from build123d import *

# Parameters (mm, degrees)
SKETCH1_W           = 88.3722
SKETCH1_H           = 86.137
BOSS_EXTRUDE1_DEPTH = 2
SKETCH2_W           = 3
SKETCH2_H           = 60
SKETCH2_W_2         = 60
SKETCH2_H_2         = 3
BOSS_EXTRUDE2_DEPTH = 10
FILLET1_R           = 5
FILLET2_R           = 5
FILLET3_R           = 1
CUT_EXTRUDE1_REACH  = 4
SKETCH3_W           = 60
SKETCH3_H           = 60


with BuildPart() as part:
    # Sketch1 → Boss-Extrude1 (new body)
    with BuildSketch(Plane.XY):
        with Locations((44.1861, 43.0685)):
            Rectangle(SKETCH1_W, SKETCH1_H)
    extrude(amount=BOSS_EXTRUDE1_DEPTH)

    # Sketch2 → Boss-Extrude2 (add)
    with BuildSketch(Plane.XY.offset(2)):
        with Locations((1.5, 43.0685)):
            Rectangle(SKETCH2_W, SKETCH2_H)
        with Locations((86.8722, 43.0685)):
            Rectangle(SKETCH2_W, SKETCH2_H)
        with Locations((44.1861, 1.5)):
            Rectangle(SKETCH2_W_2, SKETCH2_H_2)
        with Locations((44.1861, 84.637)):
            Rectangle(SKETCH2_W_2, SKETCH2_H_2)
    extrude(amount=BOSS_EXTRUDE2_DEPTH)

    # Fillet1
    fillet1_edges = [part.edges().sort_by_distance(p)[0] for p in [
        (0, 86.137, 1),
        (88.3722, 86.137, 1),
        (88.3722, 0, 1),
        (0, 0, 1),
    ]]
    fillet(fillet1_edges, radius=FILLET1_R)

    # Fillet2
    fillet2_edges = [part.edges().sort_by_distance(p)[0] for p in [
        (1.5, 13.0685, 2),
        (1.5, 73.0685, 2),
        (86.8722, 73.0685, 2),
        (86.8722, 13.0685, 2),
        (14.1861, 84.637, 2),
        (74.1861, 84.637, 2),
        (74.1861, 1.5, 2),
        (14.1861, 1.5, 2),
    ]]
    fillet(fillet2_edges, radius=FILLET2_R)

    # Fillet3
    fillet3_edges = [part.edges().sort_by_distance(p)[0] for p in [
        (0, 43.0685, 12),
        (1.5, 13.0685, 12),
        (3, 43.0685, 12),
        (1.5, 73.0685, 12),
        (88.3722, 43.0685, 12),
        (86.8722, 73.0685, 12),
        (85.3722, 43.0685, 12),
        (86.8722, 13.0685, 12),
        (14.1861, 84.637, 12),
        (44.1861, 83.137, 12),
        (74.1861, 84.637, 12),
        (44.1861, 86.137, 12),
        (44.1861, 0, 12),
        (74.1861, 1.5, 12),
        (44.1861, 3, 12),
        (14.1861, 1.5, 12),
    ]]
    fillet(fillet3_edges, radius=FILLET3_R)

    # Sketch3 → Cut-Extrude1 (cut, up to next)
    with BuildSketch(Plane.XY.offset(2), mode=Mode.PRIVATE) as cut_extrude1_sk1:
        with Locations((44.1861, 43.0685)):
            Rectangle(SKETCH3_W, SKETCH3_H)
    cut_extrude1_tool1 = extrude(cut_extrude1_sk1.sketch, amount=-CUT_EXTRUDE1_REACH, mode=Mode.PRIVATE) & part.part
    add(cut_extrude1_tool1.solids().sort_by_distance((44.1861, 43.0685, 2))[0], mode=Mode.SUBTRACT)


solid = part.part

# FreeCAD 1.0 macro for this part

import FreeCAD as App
import Part
import Sketcher

V = App.Vector


def edges_at(feature, points):
    """Names of the edges that pass closest to the given points."""
    edges = feature.Shape.Edges
    near = lambda p: min(range(len(edges)), key=lambda i: edges[i].distToShape(Part.Vertex(*p))[0])
    return sorted({f"Edge{near(p) + 1}" for p in points})

doc = App.newDocument("Part")
params = doc.addObject("Spreadsheet::Sheet", "Params")
for row, (alias, value) in enumerate([
    ("pad1_length", "2 mm"),
    ("sketch2_width", "3 mm"),
    ("sketch2_width2", "60 mm"),
    ("pad2_length", "10 mm"),
    ("fillet_radius", "5 mm"),
    ("fillet2_radius", "5 mm"),
    ("fillet3_radius", "1 mm"),
    ("sketch3_width", "60 mm"),
], start=1):
    params.set(f"A{row}", alias)
    params.set(f"B{row}", "=" + value)
    params.setAlias(f"B{row}", alias)

body = doc.addObject("PartDesign::Body", "Body")

sketch1 = body.newObject("Sketcher::SketchObject", "Sketch")
sketch1.AttachmentSupport = (doc.getObject("XY_Plane"), [""])
sketch1.MapMode = "FlatFace"
sketch1.addGeometry(Part.LineSegment(V(0, 86, 0), V(0, 0, 0)), False)
sketch1.addGeometry(Part.LineSegment(V(0, 0, 0), V(88, 0, 0)), False)
sketch1.addGeometry(Part.LineSegment(V(88, 0, 0), V(88, 86, 0)), False)
sketch1.addGeometry(Part.LineSegment(V(88, 86, 0), V(0, 86, 0)), False)
sketch1.addConstraint(Sketcher.Constraint("Coincident", 0, 2, 1, 1))
sketch1.addConstraint(Sketcher.Constraint("Coincident", 1, 2, 2, 1))
sketch1.addConstraint(Sketcher.Constraint("Coincident", 2, 2, 3, 1))
sketch1.addConstraint(Sketcher.Constraint("Coincident", 3, 2, 0, 1))
sketch1.addConstraint(Sketcher.Constraint("Vertical", 0))
sketch1.addConstraint(Sketcher.Constraint("Horizontal", 1))
sketch1.addConstraint(Sketcher.Constraint("Vertical", 2))
sketch1.addConstraint(Sketcher.Constraint("Horizontal", 3))
sketch1.addConstraint(Sketcher.Constraint("Coincident", 0, 2, -1, 1))
sketch1.addConstraint(Sketcher.Constraint("DistanceY", 0, 2, 0, 1, 86.137))
sketch1.addConstraint(Sketcher.Constraint("DistanceX", 1, 1, 1, 2, 88.3722))
pad1 = body.newObject("PartDesign::Pad", "Pad")
pad1.Profile = sketch1
pad1.setExpression("Length", "Params.pad1_length")

sketch2 = body.newObject("Sketcher::SketchObject", "Sketch001")
sketch2.AttachmentSupport = (doc.getObject("XY_Plane"), [""])
sketch2.MapMode = "FlatFace"
sketch2.AttachmentOffset = App.Placement(V(0, 0, 2), App.Rotation())
sketch2.addGeometry(Part.LineSegment(V(0, 73.1, 0), V(0, 13.1, 0)), False)
sketch2.addGeometry(Part.LineSegment(V(0, 13.1, 0), V(3, 13.1, 0)), False)
sketch2.addGeometry(Part.LineSegment(V(3, 13.1, 0), V(3, 73.1, 0)), False)
sketch2.addGeometry(Part.LineSegment(V(3, 73.1, 0), V(0, 73.1, 0)), False)
sketch2.addGeometry(Part.LineSegment(V(85.4, 73.1, 0), V(85.4, 13.1, 0)), False)
sketch2.addGeometry(Part.LineSegment(V(85.4, 13.1, 0), V(88.4, 13.1, 0)), False)
sketch2.addGeometry(Part.LineSegment(V(88.4, 13.1, 0), V(88.4, 73.1, 0)), False)
sketch2.addGeometry(Part.LineSegment(V(88.4, 73.1, 0), V(85.4, 73.1, 0)), False)
sketch2.addGeometry(Part.LineSegment(V(14.2, 3, 0), V(14.2, 0, 0)), False)
sketch2.addGeometry(Part.LineSegment(V(14.2, 0, 0), V(74.2, 0, 0)), False)
sketch2.addGeometry(Part.LineSegment(V(74.2, 0, 0), V(74.2, 3, 0)), False)
sketch2.addGeometry(Part.LineSegment(V(74.2, 3, 0), V(14.2, 3, 0)), False)
sketch2.addGeometry(Part.LineSegment(V(14.2, 86.1, 0), V(14.2, 83.1, 0)), False)
sketch2.addGeometry(Part.LineSegment(V(14.2, 83.1, 0), V(74.2, 83.1, 0)), False)
sketch2.addGeometry(Part.LineSegment(V(74.2, 83.1, 0), V(74.2, 86.1, 0)), False)
sketch2.addGeometry(Part.LineSegment(V(74.2, 86.1, 0), V(14.2, 86.1, 0)), False)
sketch2.addConstraint(Sketcher.Constraint("Coincident", 0, 2, 1, 1))
sketch2.addConstraint(Sketcher.Constraint("Coincident", 1, 2, 2, 1))
sketch2.addConstraint(Sketcher.Constraint("Coincident", 2, 2, 3, 1))
sketch2.addConstraint(Sketcher.Constraint("Coincident", 3, 2, 0, 1))
sketch2.addConstraint(Sketcher.Constraint("Coincident", 4, 2, 5, 1))
sketch2.addConstraint(Sketcher.Constraint("Coincident", 5, 2, 6, 1))
sketch2.addConstraint(Sketcher.Constraint("Coincident", 6, 2, 7, 1))
sketch2.addConstraint(Sketcher.Constraint("Coincident", 7, 2, 4, 1))
sketch2.addConstraint(Sketcher.Constraint("Coincident", 8, 2, 9, 1))
sketch2.addConstraint(Sketcher.Constraint("Coincident", 9, 2, 10, 1))
sketch2.addConstraint(Sketcher.Constraint("Coincident", 10, 2, 11, 1))
sketch2.addConstraint(Sketcher.Constraint("Coincident", 11, 2, 8, 1))
sketch2.addConstraint(Sketcher.Constraint("Coincident", 12, 2, 13, 1))
sketch2.addConstraint(Sketcher.Constraint("Coincident", 13, 2, 14, 1))
sketch2.addConstraint(Sketcher.Constraint("Coincident", 14, 2, 15, 1))
sketch2.addConstraint(Sketcher.Constraint("Coincident", 15, 2, 12, 1))
sketch2.addConstraint(Sketcher.Constraint("Vertical", 0))
sketch2.addConstraint(Sketcher.Constraint("Horizontal", 1))
sketch2.addConstraint(Sketcher.Constraint("Vertical", 2))
sketch2.addConstraint(Sketcher.Constraint("Horizontal", 3))
sketch2.addConstraint(Sketcher.Constraint("Vertical", 4))
sketch2.addConstraint(Sketcher.Constraint("Horizontal", 5))
sketch2.addConstraint(Sketcher.Constraint("Vertical", 6))
sketch2.addConstraint(Sketcher.Constraint("Horizontal", 7))
sketch2.addConstraint(Sketcher.Constraint("Vertical", 8))
sketch2.addConstraint(Sketcher.Constraint("Horizontal", 9))
sketch2.addConstraint(Sketcher.Constraint("Vertical", 10))
sketch2.addConstraint(Sketcher.Constraint("Horizontal", 11))
sketch2.addConstraint(Sketcher.Constraint("Vertical", 12))
sketch2.addConstraint(Sketcher.Constraint("Horizontal", 13))
sketch2.addConstraint(Sketcher.Constraint("Vertical", 14))
sketch2.addConstraint(Sketcher.Constraint("Horizontal", 15))
sketch2.addConstraint(Sketcher.Constraint("PointOnObject", 0, 2, -2))
sketch2.addConstraint(Sketcher.Constraint("PointOnObject", 8, 2, -1))
sketch2.addConstraint(Sketcher.Constraint("Horizontal", 1, 2, 4, 2))
sketch2.addConstraint(Sketcher.Constraint("Horizontal", 3, 2, 6, 2))
sketch2.addConstraint(Sketcher.Constraint("Vertical", 11, 2, 12, 2))
sketch2.addConstraint(Sketcher.Constraint("Vertical", 10, 2, 13, 2))
sketch2.addConstraint(Sketcher.Constraint("Equal", 3, 5))
sketch2.addConstraint(Sketcher.Constraint("Equal", 15, 0))
sketch2.addConstraint(Sketcher.Constraint("Equal", 7, 8))
sketch2.addConstraint(Sketcher.Constraint("Equal", 10, 12))
sketch2.addConstraint(Sketcher.Constraint("DistanceX", 1, 1, 1, 2, 3.0))
sketch2.addConstraint(Sketcher.Constraint("DistanceX", 9, 1, 9, 2, 60.0))
sketch2.addConstraint(Sketcher.Constraint("DistanceY", -1, 1, 12, 2, 83.137))
sketch2.addConstraint(Sketcher.Constraint("DistanceY", -1, 1, 0, 2, 13.0685))
sketch2.addConstraint(Sketcher.Constraint("DistanceX", -1, 1, 4, 2, 85.3722))
sketch2.addConstraint(Sketcher.Constraint("DistanceX", -1, 1, 8, 2, 14.1861))
sketch2.setExpression("Constraints[42]", "Params.sketch2_width")
sketch2.setExpression("Constraints[43]", "Params.sketch2_width2")
pad2 = body.newObject("PartDesign::Pad", "Pad001")
pad2.Profile = sketch2
pad2.setExpression("Length", "Params.pad2_length")
doc.recompute()

fillet = body.newObject("PartDesign::Fillet", "Fillet")
fillet.Base = (pad2, edges_at(pad2, [
    (0, 86.137, 1),
    (88.372, 86.137, 1),
    (88.372, 0, 1),
    (0, 0, 1),
]))
fillet.setExpression("Radius", "Params.fillet_radius")
doc.recompute()

fillet2 = body.newObject("PartDesign::Fillet", "Fillet001")
fillet2.Base = (fillet, edges_at(fillet, [
    (1.5, 13.069, 2),
    (1.5, 73.069, 2),
    (86.872, 73.069, 2),
    (86.872, 13.069, 2),
    (14.186, 84.637, 2),
    (74.186, 84.637, 2),
    (74.186, 1.5, 2),
    (14.186, 1.5, 2),
]))
fillet2.setExpression("Radius", "Params.fillet2_radius")
doc.recompute()

fillet3 = body.newObject("PartDesign::Fillet", "Fillet002")
fillet3.Base = (fillet2, edges_at(fillet2, [
    (0, 43.069, 12),
    (1.5, 13.069, 12),
    (3, 43.069, 12),
    (1.5, 73.069, 12),
    (88.372, 43.069, 12),
    (86.872, 73.069, 12),
    (85.372, 43.069, 12),
    (86.872, 13.069, 12),
    (14.186, 84.637, 12),
    (44.186, 83.137, 12),
    (74.186, 84.637, 12),
    (44.186, 86.137, 12),
    (44.186, 0, 12),
    (74.186, 1.5, 12),
    (44.186, 3, 12),
    (14.186, 1.5, 12),
]))
fillet3.setExpression("Radius", "Params.fillet3_radius")

sketch3 = body.newObject("Sketcher::SketchObject", "Sketch002")
sketch3.AttachmentSupport = (doc.getObject("XY_Plane"), [""])
sketch3.MapMode = "FlatFace"
sketch3.AttachmentOffset = App.Placement(V(0, 0, 2), App.Rotation())
sketch3.addGeometry(Part.LineSegment(V(14, 73, 0), V(14, 13, 0)), False)
sketch3.addGeometry(Part.LineSegment(V(14, 13, 0), V(74, 13, 0)), False)
sketch3.addGeometry(Part.LineSegment(V(74, 13, 0), V(74, 73, 0)), False)
sketch3.addGeometry(Part.LineSegment(V(74, 73, 0), V(14, 73, 0)), False)
sketch3.addConstraint(Sketcher.Constraint("Coincident", 0, 2, 1, 1))
sketch3.addConstraint(Sketcher.Constraint("Coincident", 1, 2, 2, 1))
sketch3.addConstraint(Sketcher.Constraint("Coincident", 2, 2, 3, 1))
sketch3.addConstraint(Sketcher.Constraint("Coincident", 3, 2, 0, 1))
sketch3.addConstraint(Sketcher.Constraint("Vertical", 0))
sketch3.addConstraint(Sketcher.Constraint("Horizontal", 1))
sketch3.addConstraint(Sketcher.Constraint("Vertical", 2))
sketch3.addConstraint(Sketcher.Constraint("Horizontal", 3))
sketch3.addConstraint(Sketcher.Constraint("Equal", 3, 0))
sketch3.addConstraint(Sketcher.Constraint("DistanceX", 1, 1, 1, 2, 60.0))
sketch3.addConstraint(Sketcher.Constraint("DistanceX", -1, 1, 0, 2, 14.1861))
sketch3.addConstraint(Sketcher.Constraint("DistanceY", -1, 1, 0, 2, 13.0685))
sketch3.setExpression("Constraints[9]", "Params.sketch3_width")
pocket1 = body.newObject("PartDesign::Pocket", "Pocket")
pocket1.Profile = sketch3
pocket1.Type = "UpToFirst"

doc.recompute()
